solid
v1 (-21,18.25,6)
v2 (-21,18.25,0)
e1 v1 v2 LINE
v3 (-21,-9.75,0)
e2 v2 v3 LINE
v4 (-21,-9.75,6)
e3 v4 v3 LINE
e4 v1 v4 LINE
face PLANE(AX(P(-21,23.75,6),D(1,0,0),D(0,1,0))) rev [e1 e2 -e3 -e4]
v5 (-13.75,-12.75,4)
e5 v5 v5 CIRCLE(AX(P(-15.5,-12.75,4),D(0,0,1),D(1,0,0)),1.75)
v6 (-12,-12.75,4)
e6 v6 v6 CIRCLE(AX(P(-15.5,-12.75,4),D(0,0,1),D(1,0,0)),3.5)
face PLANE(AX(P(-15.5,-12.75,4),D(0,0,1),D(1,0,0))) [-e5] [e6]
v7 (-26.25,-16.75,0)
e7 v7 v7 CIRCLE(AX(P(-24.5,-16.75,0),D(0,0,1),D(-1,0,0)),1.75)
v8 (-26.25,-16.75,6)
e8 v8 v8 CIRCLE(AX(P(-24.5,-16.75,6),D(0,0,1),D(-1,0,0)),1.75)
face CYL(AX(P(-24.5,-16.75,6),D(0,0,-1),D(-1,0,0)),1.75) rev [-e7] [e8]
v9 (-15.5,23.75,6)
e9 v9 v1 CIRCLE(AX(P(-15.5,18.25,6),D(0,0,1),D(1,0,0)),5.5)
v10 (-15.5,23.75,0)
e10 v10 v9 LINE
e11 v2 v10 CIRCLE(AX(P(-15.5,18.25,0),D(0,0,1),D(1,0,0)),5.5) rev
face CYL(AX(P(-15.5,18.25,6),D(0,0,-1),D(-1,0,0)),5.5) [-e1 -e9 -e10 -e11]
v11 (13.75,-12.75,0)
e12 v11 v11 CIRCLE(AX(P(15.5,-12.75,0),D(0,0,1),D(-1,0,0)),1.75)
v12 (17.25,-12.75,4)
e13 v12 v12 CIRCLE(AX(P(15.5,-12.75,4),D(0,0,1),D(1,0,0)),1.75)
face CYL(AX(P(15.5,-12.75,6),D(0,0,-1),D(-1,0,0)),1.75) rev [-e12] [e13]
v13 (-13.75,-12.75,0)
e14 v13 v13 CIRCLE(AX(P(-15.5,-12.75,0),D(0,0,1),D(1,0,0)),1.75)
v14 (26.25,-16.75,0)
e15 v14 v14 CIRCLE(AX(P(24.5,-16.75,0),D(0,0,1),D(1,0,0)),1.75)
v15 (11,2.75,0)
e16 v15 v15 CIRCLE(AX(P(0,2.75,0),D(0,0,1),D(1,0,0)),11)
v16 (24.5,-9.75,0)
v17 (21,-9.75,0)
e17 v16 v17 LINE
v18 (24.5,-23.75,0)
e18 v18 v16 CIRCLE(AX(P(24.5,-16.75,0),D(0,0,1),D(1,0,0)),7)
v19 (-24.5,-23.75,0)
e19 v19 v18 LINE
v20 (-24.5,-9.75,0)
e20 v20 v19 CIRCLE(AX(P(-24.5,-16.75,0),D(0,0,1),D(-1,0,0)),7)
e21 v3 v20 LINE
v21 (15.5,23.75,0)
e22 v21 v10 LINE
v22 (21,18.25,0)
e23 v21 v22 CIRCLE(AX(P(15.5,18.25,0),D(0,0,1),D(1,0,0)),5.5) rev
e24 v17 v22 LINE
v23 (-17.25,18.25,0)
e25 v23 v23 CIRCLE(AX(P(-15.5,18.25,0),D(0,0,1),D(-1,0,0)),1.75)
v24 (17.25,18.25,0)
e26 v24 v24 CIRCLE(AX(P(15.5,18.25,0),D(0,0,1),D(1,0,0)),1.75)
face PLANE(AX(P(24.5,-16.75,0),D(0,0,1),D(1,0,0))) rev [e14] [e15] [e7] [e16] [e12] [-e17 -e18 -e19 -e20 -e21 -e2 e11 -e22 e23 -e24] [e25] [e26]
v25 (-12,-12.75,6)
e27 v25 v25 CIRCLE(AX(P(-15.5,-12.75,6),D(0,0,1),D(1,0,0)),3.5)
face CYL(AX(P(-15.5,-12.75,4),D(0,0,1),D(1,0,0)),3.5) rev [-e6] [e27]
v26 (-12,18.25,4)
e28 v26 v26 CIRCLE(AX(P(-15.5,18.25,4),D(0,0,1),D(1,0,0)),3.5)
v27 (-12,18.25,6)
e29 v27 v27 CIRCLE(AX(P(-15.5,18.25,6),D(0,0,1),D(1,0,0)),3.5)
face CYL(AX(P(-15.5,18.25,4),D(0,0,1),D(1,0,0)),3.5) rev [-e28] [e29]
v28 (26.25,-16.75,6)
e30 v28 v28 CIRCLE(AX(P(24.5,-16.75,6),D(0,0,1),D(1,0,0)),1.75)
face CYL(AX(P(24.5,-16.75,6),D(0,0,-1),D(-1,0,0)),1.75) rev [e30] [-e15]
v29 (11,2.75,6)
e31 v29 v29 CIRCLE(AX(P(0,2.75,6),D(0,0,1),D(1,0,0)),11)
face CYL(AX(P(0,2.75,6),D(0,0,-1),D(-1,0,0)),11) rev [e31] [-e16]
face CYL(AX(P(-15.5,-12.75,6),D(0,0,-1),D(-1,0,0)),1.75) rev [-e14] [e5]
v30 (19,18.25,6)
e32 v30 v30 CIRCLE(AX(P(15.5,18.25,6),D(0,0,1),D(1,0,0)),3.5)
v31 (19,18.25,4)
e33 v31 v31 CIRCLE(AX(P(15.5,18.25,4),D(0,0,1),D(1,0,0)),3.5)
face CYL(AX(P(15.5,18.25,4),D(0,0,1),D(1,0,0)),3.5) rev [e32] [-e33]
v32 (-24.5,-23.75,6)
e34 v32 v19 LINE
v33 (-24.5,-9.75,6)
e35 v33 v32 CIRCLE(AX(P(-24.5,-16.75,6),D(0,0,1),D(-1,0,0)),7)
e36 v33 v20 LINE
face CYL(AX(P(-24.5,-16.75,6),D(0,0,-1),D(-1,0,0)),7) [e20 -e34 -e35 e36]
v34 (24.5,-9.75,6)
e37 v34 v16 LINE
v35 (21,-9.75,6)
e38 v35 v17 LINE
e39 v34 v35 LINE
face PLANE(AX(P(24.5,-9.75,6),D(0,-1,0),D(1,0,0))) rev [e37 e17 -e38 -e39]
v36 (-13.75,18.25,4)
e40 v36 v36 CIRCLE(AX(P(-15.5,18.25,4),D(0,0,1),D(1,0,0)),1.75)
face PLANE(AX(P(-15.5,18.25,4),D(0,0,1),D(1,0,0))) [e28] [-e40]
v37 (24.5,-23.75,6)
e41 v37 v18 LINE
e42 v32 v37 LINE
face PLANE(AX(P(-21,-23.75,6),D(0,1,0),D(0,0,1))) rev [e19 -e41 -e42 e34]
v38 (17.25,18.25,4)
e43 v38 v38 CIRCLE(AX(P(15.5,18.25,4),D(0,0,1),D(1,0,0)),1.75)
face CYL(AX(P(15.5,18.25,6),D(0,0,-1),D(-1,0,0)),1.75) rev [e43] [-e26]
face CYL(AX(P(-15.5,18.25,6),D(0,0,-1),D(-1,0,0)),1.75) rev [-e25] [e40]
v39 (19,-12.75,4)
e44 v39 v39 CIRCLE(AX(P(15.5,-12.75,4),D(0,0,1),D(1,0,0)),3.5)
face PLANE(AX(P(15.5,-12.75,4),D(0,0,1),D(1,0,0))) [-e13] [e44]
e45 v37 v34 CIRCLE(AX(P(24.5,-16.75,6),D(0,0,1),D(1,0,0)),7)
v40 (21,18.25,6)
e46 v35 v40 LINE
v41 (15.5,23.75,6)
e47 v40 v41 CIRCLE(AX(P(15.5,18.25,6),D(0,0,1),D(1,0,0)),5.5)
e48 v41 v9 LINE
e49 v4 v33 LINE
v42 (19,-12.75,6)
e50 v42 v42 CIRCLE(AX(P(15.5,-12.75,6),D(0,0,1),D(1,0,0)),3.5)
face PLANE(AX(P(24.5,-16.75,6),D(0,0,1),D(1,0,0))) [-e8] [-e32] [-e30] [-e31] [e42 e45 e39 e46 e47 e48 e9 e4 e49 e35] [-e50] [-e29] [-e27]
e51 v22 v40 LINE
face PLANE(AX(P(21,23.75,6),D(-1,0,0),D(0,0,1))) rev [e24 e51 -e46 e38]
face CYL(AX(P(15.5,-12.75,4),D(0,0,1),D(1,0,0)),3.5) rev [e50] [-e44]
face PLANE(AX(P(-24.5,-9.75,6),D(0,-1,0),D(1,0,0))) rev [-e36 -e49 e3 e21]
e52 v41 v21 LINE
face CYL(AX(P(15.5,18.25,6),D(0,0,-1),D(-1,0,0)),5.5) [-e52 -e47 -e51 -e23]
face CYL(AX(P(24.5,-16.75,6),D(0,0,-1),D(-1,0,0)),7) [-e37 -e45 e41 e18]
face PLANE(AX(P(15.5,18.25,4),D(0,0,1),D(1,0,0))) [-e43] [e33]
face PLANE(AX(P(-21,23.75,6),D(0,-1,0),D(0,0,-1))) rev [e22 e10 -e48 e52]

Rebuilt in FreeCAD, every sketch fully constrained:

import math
import FreeCAD as App
import Part
import Sketcher

V = App.Vector


def edges_at(feature, points):
    """Names of the edges that pass closest to the given points."""
    edges = feature.Shape.Edges
    near = lambda p: min(range(len(edges)), key=lambda i: edges[i].distToShape(Part.Vertex(*p))[0])
    return sorted({f"Edge{near(p) + 1}" for p in points})

doc = App.newDocument("Part")
params = doc.addObject("Spreadsheet::Sheet", "Params")
for row, (alias, value) in enumerate([
    ("sketch1_diameter", "22 mm"),
    ("sketch1_radius", "7 mm"),
    ("sketch1_diameter2", "3.5 mm"),
    ("sketch1_width", "42 mm"),
    ("sketch1_width2", "49 mm"),
    ("pad1_length", "6 mm"),
    ("fillet_radius", "5.5 mm"),
    ("sketch2_diameter", "7 mm"),
    ("pocket1_length", "2 mm"),
], start=1):
    params.set(f"A{row}", alias)
    params.set(f"B{row}", "=" + value)
    params.setAlias(f"B{row}", alias)

body = doc.addObject("PartDesign::Body", "Body")

# Sketch on XY plane
sketch1 = body.newObject("Sketcher::SketchObject", "Sketch")
sketch1.AttachmentSupport = (doc.getObject("XY_Plane"), [""])
sketch1.MapMode = "FlatFace"
sketch1.addGeometry([
    Part.LineSegment(V(21, 23.8, 0), V(-21, 23.8, 0)),  # 0
    Part.LineSegment(V(-21, 23.8, 0), V(-21, -9.8, 0)),  # 1
    Part.LineSegment(V(-21, -9.8, 0), V(-24.5, -9.8, 0)),  # 2
    Part.ArcOfCircle(Part.Circle(V(-24.5, -16.8, 0), V(0, 0, 1), 7), math.radians(90), math.radians(270)),  # 3
    Part.LineSegment(V(-24.5, -23.8, 0), V(24.5, -23.8, 0)),  # 4
    Part.ArcOfCircle(Part.Circle(V(24.5, -16.8, 0), V(0, 0, 1), 7), math.radians(-90), math.radians(90)),  # 5
    Part.LineSegment(V(24.5, -9.8, 0), V(21, -9.8, 0)),  # 6
    Part.LineSegment(V(21, -9.8, 0), V(21, 23.8, 0)),  # 7
    Part.Circle(V(24.5, -16.8, 0), V(0, 0, 1), 1.8),  # 8
    Part.Circle(V(15.5, -12.8, 0), V(0, 0, 1), 1.8),  # 9
    Part.Circle(V(-24.5, -16.8, 0), V(0, 0, 1), 1.8),  # 10
    Part.Circle(V(-15.5, -12.8, 0), V(0, 0, 1), 1.8),  # 11
    Part.Circle(V(15.5, 18.2, 0), V(0, 0, 1), 1.8),  # 12
    Part.Circle(V(0, 2.8, 0), V(0, 0, 1), 11),  # 13
    Part.Circle(V(-15.5, 18.2, 0), V(0, 0, 1), 1.8),  # 14
], False)
sketch1.addConstraint([
    Sketcher.Constraint("Coincident", 0, 2, 1, 1),
    Sketcher.Constraint("Coincident", 1, 2, 2, 1),
    Sketcher.Constraint("Tangent", 2, 2, 3, 1),
    Sketcher.Constraint("Tangent", 3, 2, 4, 1),
    Sketcher.Constraint("Tangent", 4, 2, 5, 1),
    Sketcher.Constraint("Tangent", 5, 2, 6, 1),
    Sketcher.Constraint("Coincident", 6, 2, 7, 1),
    Sketcher.Constraint("Coincident", 7, 2, 0, 1),
    Sketcher.Constraint("Horizontal", 0),
    Sketcher.Constraint("Vertical", 1),
    Sketcher.Constraint("Horizontal", 2),
    Sketcher.Constraint("Horizontal", 4),
    Sketcher.Constraint("Horizontal", 6),
    Sketcher.Constraint("Vertical", 7),
    Sketcher.Constraint("Coincident", 8, 3, 5, 3),
    Sketcher.Constraint("Coincident", 10, 3, 3, 3),
    Sketcher.Constraint("Equal", 3, 5),
    Sketcher.Constraint("Equal", 8, 9),
    Sketcher.Constraint("Equal", 9, 10),
    Sketcher.Constraint("Equal", 10, 11),
    Sketcher.Constraint("Equal", 11, 12),
    Sketcher.Constraint("Equal", 12, 14),
    Sketcher.Constraint("Symmetric", 9, 3, 11, 3, -2),
    Sketcher.Constraint("Symmetric", 12, 3, 14, 3, -2),
    Sketcher.Constraint("PointOnObject", 13, 3, -2),
    Sketcher.Constraint("Vertical", 9, 3, 12, 3),
    Sketcher.Constraint("Equal", 2, 6),
    Sketcher.Constraint("Diameter", 13, 22.0),
    Sketcher.Constraint("Radius", 3, 7.0),
    Sketcher.Constraint("Diameter", 8, 3.5),
    Sketcher.Constraint("DistanceX", 0, 2, 0, 1, 42.0),
    Sketcher.Constraint("DistanceX", 4, 1, 4, 2, 49.0),
    Sketcher.Constraint("DistanceY", 1, 2, 1, 1, 33.5),
    Sketcher.Constraint("DistanceX", 0, 2, -1, 1, 21.0),
    Sketcher.Constraint("DistanceX", 9, 3, 5, 3, 9.0),
    Sketcher.Constraint("DistanceY", 5, 3, 9, 3, 4.0),
    Sketcher.Constraint("DistanceY", 9, 3, 12, 3, 31.0),
    Sketcher.Constraint("DistanceY", 13, 3, 0, 2, 21.0),
    Sketcher.Constraint("DistanceY", 3, 3, -1, 1, 16.75),
])
sketch1.setExpression("Constraints[27]", "Params.sketch1_diameter")
sketch1.setExpression("Constraints[28]", "Params.sketch1_radius")
sketch1.setExpression("Constraints[29]", "Params.sketch1_diameter2")
sketch1.setExpression("Constraints[30]", "Params.sketch1_width")
sketch1.setExpression("Constraints[31]", "Params.sketch1_width2")
pad1 = body.newObject("PartDesign::Pad", "Pad")
pad1.Profile = sketch1
pad1.setExpression("Length", "Params.pad1_length")
doc.recompute()

fillet = body.newObject("PartDesign::Fillet", "Fillet")
fillet.Base = (pad1, edges_at(pad1, [(-21, 23.75, 3), (21, 23.75, 3)]))
fillet.setExpression("Radius", "Params.fillet_radius")

# Sketch on XY plane
sketch2 = body.newObject("Sketcher::SketchObject", "Sketch001")
sketch2.AttachmentSupport = (doc.getObject("XY_Plane"), [""])
sketch2.MapMode = "FlatFace"
sketch2.AttachmentOffset = App.Placement(V(0, 0, 6), App.Rotation())
sketch2.addGeometry([
    Part.Circle(V(-15.5, 18.2, 0), V(0, 0, 1), 3.5),
    Part.Circle(V(15.5, 18.2, 0), V(0, 0, 1), 3.5),
    Part.Circle(V(15.5, -12.8, 0), V(0, 0, 1), 3.5),
    Part.Circle(V(-15.5, -12.8, 0), V(0, 0, 1), 3.5),
], False)
sketch2.addConstraint([
    Sketcher.Constraint("Equal", 0, 1),
    Sketcher.Constraint("Equal", 1, 2),
    Sketcher.Constraint("Equal", 2, 3),
    Sketcher.Constraint("Symmetric", 0, 3, 1, 3, -2),
    Sketcher.Constraint("Symmetric", 2, 3, 3, 3, -2),
    Sketcher.Constraint("Vertical", 1, 3, 2, 3),
    Sketcher.Constraint("Diameter", 0, 7.0),
    Sketcher.Constraint("DistanceX", 0, 3, 1, 3, 31.0),
    Sketcher.Constraint("DistanceY", 2, 3, 1, 3, 31.0),
    Sketcher.Constraint("DistanceY", -1, 1, 0, 3, 18.25),
])
sketch2.setExpression("Constraints[6]", "Params.sketch2_diameter")
pocket1 = body.newObject("PartDesign::Pocket", "Pocket")
pocket1.Profile = sketch2
pocket1.setExpression("Length", "Params.pocket1_length")

doc.recompute()
